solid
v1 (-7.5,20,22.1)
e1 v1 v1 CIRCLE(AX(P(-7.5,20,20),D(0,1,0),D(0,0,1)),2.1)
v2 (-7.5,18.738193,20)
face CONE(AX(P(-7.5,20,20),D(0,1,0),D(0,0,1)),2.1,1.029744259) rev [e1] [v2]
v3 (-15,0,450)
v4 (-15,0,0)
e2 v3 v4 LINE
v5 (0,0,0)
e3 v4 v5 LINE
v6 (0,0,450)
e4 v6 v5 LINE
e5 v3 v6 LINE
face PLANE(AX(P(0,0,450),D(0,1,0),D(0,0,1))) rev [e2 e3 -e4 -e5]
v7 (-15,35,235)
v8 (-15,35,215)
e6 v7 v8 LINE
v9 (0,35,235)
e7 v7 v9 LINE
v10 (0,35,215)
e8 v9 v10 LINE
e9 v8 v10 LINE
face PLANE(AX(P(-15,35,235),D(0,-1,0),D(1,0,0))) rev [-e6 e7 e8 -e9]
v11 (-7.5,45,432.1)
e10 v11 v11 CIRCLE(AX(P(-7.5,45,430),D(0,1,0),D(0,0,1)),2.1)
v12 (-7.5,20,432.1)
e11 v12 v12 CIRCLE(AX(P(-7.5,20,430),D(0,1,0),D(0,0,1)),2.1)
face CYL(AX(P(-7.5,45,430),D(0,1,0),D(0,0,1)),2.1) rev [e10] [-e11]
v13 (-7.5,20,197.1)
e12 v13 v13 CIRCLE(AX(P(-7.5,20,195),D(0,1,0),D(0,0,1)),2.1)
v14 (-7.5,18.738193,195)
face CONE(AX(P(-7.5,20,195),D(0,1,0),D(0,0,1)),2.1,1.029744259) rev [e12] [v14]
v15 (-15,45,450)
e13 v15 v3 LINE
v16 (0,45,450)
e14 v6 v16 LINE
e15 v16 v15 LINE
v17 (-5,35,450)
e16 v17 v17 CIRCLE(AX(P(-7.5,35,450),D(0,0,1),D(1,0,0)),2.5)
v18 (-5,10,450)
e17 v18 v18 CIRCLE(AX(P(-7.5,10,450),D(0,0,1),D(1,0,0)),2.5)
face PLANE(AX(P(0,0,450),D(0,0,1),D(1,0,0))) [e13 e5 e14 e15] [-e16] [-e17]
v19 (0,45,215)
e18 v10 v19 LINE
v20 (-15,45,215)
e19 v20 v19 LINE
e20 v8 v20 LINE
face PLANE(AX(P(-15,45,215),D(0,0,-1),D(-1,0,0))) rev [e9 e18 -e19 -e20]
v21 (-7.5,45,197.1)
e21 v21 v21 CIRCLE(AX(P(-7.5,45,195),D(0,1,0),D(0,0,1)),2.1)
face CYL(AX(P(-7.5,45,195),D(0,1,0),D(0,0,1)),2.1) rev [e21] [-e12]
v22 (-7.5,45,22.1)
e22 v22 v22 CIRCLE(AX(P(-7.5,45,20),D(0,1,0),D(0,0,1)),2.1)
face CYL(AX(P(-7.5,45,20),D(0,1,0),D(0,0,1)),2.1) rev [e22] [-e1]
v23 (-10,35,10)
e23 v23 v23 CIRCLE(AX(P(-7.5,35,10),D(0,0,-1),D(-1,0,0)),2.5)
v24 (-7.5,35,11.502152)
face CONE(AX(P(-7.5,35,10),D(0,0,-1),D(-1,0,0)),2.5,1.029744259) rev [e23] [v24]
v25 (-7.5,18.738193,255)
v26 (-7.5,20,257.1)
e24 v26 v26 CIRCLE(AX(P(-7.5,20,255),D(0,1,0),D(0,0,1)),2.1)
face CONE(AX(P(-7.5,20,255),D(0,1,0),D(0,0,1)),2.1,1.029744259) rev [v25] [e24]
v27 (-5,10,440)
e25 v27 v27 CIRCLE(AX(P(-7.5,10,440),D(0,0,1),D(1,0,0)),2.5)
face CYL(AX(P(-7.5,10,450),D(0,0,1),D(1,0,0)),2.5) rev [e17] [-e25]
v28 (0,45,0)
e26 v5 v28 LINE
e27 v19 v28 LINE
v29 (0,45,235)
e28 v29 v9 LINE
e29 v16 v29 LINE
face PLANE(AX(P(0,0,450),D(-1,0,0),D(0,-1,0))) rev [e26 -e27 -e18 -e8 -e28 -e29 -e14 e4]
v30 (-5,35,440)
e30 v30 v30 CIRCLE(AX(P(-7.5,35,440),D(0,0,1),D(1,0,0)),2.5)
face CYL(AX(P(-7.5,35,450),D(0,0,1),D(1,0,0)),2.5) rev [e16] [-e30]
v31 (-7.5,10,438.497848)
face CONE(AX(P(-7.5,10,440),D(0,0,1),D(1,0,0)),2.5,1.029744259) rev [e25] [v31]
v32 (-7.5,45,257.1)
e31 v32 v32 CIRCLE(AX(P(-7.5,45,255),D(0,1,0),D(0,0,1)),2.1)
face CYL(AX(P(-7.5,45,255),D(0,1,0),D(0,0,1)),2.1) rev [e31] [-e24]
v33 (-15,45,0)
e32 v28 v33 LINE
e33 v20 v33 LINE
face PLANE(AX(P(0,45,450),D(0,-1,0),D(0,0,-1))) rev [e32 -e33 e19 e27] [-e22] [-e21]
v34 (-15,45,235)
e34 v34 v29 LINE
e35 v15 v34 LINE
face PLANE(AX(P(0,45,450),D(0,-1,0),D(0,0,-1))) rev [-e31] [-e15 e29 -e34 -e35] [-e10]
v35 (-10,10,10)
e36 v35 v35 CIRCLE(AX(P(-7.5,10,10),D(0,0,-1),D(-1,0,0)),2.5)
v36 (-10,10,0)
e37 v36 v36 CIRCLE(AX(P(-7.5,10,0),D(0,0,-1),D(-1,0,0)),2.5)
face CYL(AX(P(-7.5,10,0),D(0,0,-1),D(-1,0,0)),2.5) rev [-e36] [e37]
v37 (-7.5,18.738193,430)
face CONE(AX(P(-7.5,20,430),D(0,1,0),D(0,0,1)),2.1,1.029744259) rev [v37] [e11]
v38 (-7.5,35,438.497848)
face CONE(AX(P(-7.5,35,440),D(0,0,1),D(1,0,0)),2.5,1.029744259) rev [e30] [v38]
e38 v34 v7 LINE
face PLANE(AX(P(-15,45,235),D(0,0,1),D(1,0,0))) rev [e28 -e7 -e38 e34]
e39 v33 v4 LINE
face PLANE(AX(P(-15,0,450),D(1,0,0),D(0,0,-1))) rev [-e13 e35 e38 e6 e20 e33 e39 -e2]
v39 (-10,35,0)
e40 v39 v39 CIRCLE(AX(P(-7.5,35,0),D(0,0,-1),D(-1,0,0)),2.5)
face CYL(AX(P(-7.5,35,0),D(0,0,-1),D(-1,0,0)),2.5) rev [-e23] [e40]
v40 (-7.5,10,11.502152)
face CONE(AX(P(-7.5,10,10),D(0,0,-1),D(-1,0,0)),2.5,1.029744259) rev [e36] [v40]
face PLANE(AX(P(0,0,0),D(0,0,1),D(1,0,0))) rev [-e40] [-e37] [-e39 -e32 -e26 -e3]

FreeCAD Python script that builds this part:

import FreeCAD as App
import Part
import Sketcher
from FreeCAD import Vector
Q = App.Units.Quantity

doc = App.newDocument("Part")
body = doc.addObject("PartDesign::Body", "Body")

sketch1 = body.newObject("Sketcher::SketchObject", "Sketch")
sketch1.AttachmentSupport = (doc.getObject("XY_Plane"), [""])
sketch1.MapMode = "FlatFace"
sketch1.addGeometry([
    Part.LineSegment(Vector(-15, 45, 0), Vector(-15, 0, 0)),
    Part.LineSegment(Vector(-15, 0, 0), Vector(0, 0, 0)),
    Part.LineSegment(Vector(0, 0, 0), Vector(0, 45, 0)),
    Part.LineSegment(Vector(0, 45, 0), Vector(-15, 45, 0)),
], False)
sketch1.addConstraint([
    Sketcher.Constraint("Coincident", 0, 2, 1, 1),
    Sketcher.Constraint("Coincident", 1, 2, 2, 1),
    Sketcher.Constraint("Coincident", 2, 2, 3, 1),
    Sketcher.Constraint("Coincident", 3, 2, 0, 1),
    Sketcher.Constraint("Vertical", 0),
    Sketcher.Constraint("Horizontal", 1),
    Sketcher.Constraint("Vertical", 2),
    Sketcher.Constraint("Horizontal", 3),
    Sketcher.Constraint("Coincident", 1, 2, -1, 1),
    Sketcher.Constraint("DistanceX", 1, 1, 1, 2, Q("15 mm")),
    Sketcher.Constraint("DistanceY", 0, 2, 0, 1, Q("45 mm")),
])
pad1 = body.newObject("PartDesign::Pad", "Pad")
pad1.Profile = sketch1
pad1.Length = 450

sketch2 = body.newObject("Sketcher::SketchObject", "Sketch001")
sketch2.AttachmentSupport = (doc.getObject("XY_Plane"), [""])
sketch2.MapMode = "FlatFace"
sketch2.AttachmentOffset = App.Placement(Vector(0, 0, 450), App.Rotation())
sketch2.addGeometry([
    Part.Circle(Vector(-7.5, 35, 0), Vector(0, 0, 1), 2.5),
    Part.Circle(Vector(-7.5, 10, 0), Vector(0, 0, 1), 2.5),
], False)
sketch2.addConstraint([
    Sketcher.Constraint("Equal", 0, 1),
    Sketcher.Constraint("Vertical", 0, 3, 1, 3),
    Sketcher.Constraint("Diameter", 0, Q("5 mm")),
    Sketcher.Constraint("DistanceY", -1, 1, 0, 3, Q("35 mm")),
    Sketcher.Constraint("DistanceY", -1, 1, 1, 3, Q("10 mm")),
    Sketcher.Constraint("DistanceX", 0, 3, -1, 1, Q("7.5 mm")),
])
doc.recompute()
hole = body.newObject("PartDesign::Hole", "Hole")
hole.Profile = sketch2
hole.ThreadType = "None"
hole.Diameter = 5
hole.DepthType = "Dimension"
hole.Depth = 10
hole.DrillPoint = "Angled"
hole.DrillPointAngle = 118

sketch3 = body.newObject("Sketcher::SketchObject", "Sketch002")
sketch3.AttachmentSupport = (doc.getObject("XY_Plane"), [""])
sketch3.MapMode = "FlatFace"
sketch3.addGeometry([
    Part.Circle(Vector(-7.5, 35, 0), Vector(0, 0, 1), 2.5),
    Part.Circle(Vector(-7.5, 10, 0), Vector(0, 0, 1), 2.5),
], False)
sketch3.addConstraint([
    Sketcher.Constraint("Equal", 0, 1),
    Sketcher.Constraint("Vertical", 0, 3, 1, 3),
    Sketcher.Constraint("Diameter", 0, Q("5 mm")),
    Sketcher.Constraint("DistanceY", -1, 1, 0, 3, Q("35 mm")),
    Sketcher.Constraint("DistanceY", -1, 1, 1, 3, Q("10 mm")),
    Sketcher.Constraint("DistanceX", 0, 3, -1, 1, Q("7.5 mm")),
])
doc.recompute()
hole2 = body.newObject("PartDesign::Hole", "Hole001")
hole2.Profile = sketch3
hole2.ThreadType = "None"
hole2.Diameter = 5
hole2.DepthType = "Dimension"
hole2.Depth = 10
hole2.DrillPoint = "Angled"
hole2.DrillPointAngle = 118
hole2.Reversed = True

sketch4 = body.newObject("Sketcher::SketchObject", "Sketch003")
sketch4.AttachmentSupport = (doc.getObject("YZ_Plane"), [""])
sketch4.MapMode = "FlatFace"
sketch4.addGeometry([
    Part.LineSegment(Vector(45, 235, 0), Vector(35, 235, 0)),
    Part.LineSegment(Vector(35, 235, 0), Vector(35, 215, 0)),
    Part.LineSegment(Vector(35, 215, 0), Vector(45, 215, 0)),
    Part.LineSegment(Vector(45, 215, 0), Vector(45, 235, 0)),
], False)
sketch4.addConstraint([
    Sketcher.Constraint("Coincident", 0, 2, 1, 1),
    Sketcher.Constraint("Coincident", 1, 2, 2, 1),
    Sketcher.Constraint("Coincident", 2, 2, 3, 1),
    Sketcher.Constraint("Coincident", 3, 2, 0, 1),
    Sketcher.Constraint("Horizontal", 0),
    Sketcher.Constraint("Vertical", 1),
    Sketcher.Constraint("Horizontal", 2),
    Sketcher.Constraint("Vertical", 3),
    Sketcher.Constraint("DistanceX", 0, 2, 0, 1, Q("10 mm")),
    Sketcher.Constraint("DistanceY", 1, 2, 1, 1, Q("20 mm")),
    Sketcher.Constraint("DistanceX", -1, 1, 0, 2, Q("35 mm")),
    Sketcher.Constraint("DistanceY", -1, 1, 0, 2, Q("235 mm")),
])
pocket1 = body.newObject("PartDesign::Pocket", "Pocket")
pocket1.Profile = sketch4
pocket1.Length = 15

sketch5 = body.newObject("Sketcher::SketchObject", "Sketch004")
sketch5.AttachmentSupport = (doc.getObject("XZ_Plane"), [""])
sketch5.MapMode = "FlatFace"
sketch5.AttachmentOffset = App.Placement(Vector(0, 0, -45), App.Rotation())
sketch5.addGeometry([
    Part.Circle(Vector(-7.5, 430, 0), Vector(0, 0, 1), 2.1),
    Part.Circle(Vector(-7.5, 255, 0), Vector(0, 0, 1), 2.1),
    Part.Circle(Vector(-7.5, 195, 0), Vector(0, 0, 1), 2.1),
    Part.Circle(Vector(-7.5, 20, 0), Vector(0, 0, 1), 2.1),
], False)
sketch5.addConstraint([
    Sketcher.Constraint("Equal", 0, 1),
    Sketcher.Constraint("Equal", 1, 2),
    Sketcher.Constraint("Equal", 2, 3),
    Sketcher.Constraint("Vertical", 0, 3, 1, 3),
    Sketcher.Constraint("Vertical", 1, 3, 2, 3),
    Sketcher.Constraint("Vertical", 2, 3, 3, 3),
    Sketcher.Constraint("Diameter", 0, Q("4.2 mm")),
    Sketcher.Constraint("DistanceY", -1, 1, 0, 3, Q("430 mm")),
    Sketcher.Constraint("DistanceY", -1, 1, 1, 3, Q("255 mm")),
    Sketcher.Constraint("DistanceY", -1, 1, 2, 3, Q("195 mm")),
    Sketcher.Constraint("DistanceY", -1, 1, 3, 3, Q("20 mm")),
    Sketcher.Constraint("DistanceX", 0, 3, -1, 1, Q("7.5 mm")),
])
doc.recompute()
hole3 = body.newObject("PartDesign::Hole", "Hole002")
hole3.Profile = sketch5
hole3.ThreadType = "None"
hole3.Diameter = 4.2
hole3.DepthType = "Dimension"
hole3.Depth = 25
hole3.DrillPoint = "Angled"
hole3.DrillPointAngle = 118
hole3.Reversed = True

doc.recompute()
